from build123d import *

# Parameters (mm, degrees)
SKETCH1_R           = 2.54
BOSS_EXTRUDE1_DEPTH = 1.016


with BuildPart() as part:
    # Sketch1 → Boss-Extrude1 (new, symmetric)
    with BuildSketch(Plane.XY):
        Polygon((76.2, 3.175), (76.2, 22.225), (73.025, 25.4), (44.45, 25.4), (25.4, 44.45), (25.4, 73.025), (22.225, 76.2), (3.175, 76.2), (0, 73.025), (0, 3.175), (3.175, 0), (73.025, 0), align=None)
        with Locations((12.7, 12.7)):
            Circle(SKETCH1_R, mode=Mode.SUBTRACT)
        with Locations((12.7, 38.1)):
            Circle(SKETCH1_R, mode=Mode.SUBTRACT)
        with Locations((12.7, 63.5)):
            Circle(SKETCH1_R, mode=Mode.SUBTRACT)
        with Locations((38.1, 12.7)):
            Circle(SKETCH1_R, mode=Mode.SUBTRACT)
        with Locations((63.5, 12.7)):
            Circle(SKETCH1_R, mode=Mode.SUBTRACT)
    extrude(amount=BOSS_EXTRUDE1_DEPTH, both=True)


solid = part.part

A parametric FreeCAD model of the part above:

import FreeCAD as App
import Part
import Sketcher
Q = App.Units.Quantity


def add_polygon(sketch, points):
    """Adds a closed chain of lines whose ends are joined by coincident constraints."""
    first, n = sketch.GeometryCount, len(points)
    for a, b in zip(points, points[1:] + points[:1]):
        sketch.addGeometry(Part.LineSegment(App.Vector(*a, 0), App.Vector(*b, 0)), False)
    for i in range(n):
        sketch.addConstraint(Sketcher.Constraint("Coincident", first + i, 2, first + (i + 1) % n, 1))

doc = App.newDocument("Part")
body = doc.addObject("PartDesign::Body", "Body")

sketch1 = doc.addObject("Sketcher::SketchObject", "Sketch")
body.addObject(sketch1)
sketch1.AttachmentSupport = (doc.XY_Plane, [""])
sketch1.MapMode = "FlatFace"
add_polygon(sketch1, [(76.2, 3.175), (76.2, 22.225), (73.025, 25.4), (44.45, 25.4), (25.4, 44.45), (25.4, 73.025), (22.225, 76.2), (3.175, 76.2), (0, 73.025), (0, 3.175), (3.175, 0), (73.025, 0)])
sketch1.addGeometry(Part.Circle(App.Vector(12.7, 12.7, 0), App.Vector(0, 0, 1), 2.54), False)
sketch1.addGeometry(Part.Circle(App.Vector(38.1, 12.7, 0), App.Vector(0, 0, 1), 2.54), False)
sketch1.addGeometry(Part.Circle(App.Vector(63.5, 12.7, 0), App.Vector(0, 0, 1), 2.54), False)
sketch1.addGeometry(Part.Circle(App.Vector(12.7, 38.1, 0), App.Vector(0, 0, 1), 2.54), False)
sketch1.addGeometry(Part.Circle(App.Vector(12.7, 63.5, 0), App.Vector(0, 0, 1), 2.54), False)
sketch1.addConstraint([
    Sketcher.Constraint("Vertical", 0),
    Sketcher.Constraint("Horizontal", 2),
    Sketcher.Constraint("Vertical", 4),
    Sketcher.Constraint("Horizontal", 6),
    Sketcher.Constraint("Vertical", 8),
    Sketcher.Constraint("Horizontal", 10),
    Sketcher.Constraint("Equal", 12, 13),
    Sketcher.Constraint("Equal", 13, 14),
    Sketcher.Constraint("Equal", 14, 15),
    Sketcher.Constraint("Equal", 15, 16),
    Sketcher.Constraint("PointOnObject", 7, 2, -2),
    Sketcher.Constraint("PointOnObject", 9, 2, -1),
    Sketcher.Constraint("Parallel", 1, 3),
    Sketcher.Constraint("Parallel", 3, 5),
    Sketcher.Constraint("Perpendicular", 5, 7),
    Sketcher.Constraint("Perpendicular", 7, 9),
    Sketcher.Constraint("Perpendicular", 9, 11),
    Sketcher.Constraint("Horizontal", 12, 3, 13, 3),
    Sketcher.Constraint("Horizontal", 13, 3, 14, 3),
    Sketcher.Constraint("Horizontal", 4, 2, 7, 2),
    Sketcher.Constraint("Horizontal", 8, 2, 11, 2),
    Sketcher.Constraint("Vertical", 12, 3, 15, 3),
    Sketcher.Constraint("Vertical", 15, 3, 16, 3),
    Sketcher.Constraint("Vertical", 6, 2, 9, 2),
    Sketcher.Constraint("Vertical", 1, 2, 10, 2),
    Sketcher.Constraint("Equal", 6, 0),
    Sketcher.Constraint("Equal", 2, 4),
    Sketcher.Constraint("Equal", 10, 8),
    Sketcher.Constraint("Diameter", 12, Q("0.2 in")),
    Sketcher.Constraint("DistanceX", -1, 1, 0, 2, Q("3 in")),
    Sketcher.Constraint("DistanceY", -1, 1, 1, 2, Q("1 in")),
    Sketcher.Constraint("DistanceX", 12, 3, 13, 3, Q("1 in")),
    Sketcher.Constraint("DistanceX", 13, 3, 14, 3, Q("1 in")),
    Sketcher.Constraint("DistanceY", 12, 3, 15, 3, Q("1 in")),
    Sketcher.Constraint("DistanceY", 15, 3, 16, 3, Q("1 in")),
    Sketcher.Constraint("DistanceX", 6, 2, 6, 1, Q("0.75 in")),
    Sketcher.Constraint("DistanceX", -1, 1, 12, 3, Q("0.5 in")),
    Sketcher.Constraint("DistanceY", -1, 1, 12, 3, Q("0.5 in")),
    Sketcher.Constraint("DistanceX", 2, 2, 2, 1, Q("1.125 in")),
])
pad1 = doc.addObject("PartDesign::Pad", "Pad")
body.addObject(pad1)
pad1.Profile = sketch1
pad1.Length = Q("0.08 in")
pad1.Midplane = True

doc.recompute()
